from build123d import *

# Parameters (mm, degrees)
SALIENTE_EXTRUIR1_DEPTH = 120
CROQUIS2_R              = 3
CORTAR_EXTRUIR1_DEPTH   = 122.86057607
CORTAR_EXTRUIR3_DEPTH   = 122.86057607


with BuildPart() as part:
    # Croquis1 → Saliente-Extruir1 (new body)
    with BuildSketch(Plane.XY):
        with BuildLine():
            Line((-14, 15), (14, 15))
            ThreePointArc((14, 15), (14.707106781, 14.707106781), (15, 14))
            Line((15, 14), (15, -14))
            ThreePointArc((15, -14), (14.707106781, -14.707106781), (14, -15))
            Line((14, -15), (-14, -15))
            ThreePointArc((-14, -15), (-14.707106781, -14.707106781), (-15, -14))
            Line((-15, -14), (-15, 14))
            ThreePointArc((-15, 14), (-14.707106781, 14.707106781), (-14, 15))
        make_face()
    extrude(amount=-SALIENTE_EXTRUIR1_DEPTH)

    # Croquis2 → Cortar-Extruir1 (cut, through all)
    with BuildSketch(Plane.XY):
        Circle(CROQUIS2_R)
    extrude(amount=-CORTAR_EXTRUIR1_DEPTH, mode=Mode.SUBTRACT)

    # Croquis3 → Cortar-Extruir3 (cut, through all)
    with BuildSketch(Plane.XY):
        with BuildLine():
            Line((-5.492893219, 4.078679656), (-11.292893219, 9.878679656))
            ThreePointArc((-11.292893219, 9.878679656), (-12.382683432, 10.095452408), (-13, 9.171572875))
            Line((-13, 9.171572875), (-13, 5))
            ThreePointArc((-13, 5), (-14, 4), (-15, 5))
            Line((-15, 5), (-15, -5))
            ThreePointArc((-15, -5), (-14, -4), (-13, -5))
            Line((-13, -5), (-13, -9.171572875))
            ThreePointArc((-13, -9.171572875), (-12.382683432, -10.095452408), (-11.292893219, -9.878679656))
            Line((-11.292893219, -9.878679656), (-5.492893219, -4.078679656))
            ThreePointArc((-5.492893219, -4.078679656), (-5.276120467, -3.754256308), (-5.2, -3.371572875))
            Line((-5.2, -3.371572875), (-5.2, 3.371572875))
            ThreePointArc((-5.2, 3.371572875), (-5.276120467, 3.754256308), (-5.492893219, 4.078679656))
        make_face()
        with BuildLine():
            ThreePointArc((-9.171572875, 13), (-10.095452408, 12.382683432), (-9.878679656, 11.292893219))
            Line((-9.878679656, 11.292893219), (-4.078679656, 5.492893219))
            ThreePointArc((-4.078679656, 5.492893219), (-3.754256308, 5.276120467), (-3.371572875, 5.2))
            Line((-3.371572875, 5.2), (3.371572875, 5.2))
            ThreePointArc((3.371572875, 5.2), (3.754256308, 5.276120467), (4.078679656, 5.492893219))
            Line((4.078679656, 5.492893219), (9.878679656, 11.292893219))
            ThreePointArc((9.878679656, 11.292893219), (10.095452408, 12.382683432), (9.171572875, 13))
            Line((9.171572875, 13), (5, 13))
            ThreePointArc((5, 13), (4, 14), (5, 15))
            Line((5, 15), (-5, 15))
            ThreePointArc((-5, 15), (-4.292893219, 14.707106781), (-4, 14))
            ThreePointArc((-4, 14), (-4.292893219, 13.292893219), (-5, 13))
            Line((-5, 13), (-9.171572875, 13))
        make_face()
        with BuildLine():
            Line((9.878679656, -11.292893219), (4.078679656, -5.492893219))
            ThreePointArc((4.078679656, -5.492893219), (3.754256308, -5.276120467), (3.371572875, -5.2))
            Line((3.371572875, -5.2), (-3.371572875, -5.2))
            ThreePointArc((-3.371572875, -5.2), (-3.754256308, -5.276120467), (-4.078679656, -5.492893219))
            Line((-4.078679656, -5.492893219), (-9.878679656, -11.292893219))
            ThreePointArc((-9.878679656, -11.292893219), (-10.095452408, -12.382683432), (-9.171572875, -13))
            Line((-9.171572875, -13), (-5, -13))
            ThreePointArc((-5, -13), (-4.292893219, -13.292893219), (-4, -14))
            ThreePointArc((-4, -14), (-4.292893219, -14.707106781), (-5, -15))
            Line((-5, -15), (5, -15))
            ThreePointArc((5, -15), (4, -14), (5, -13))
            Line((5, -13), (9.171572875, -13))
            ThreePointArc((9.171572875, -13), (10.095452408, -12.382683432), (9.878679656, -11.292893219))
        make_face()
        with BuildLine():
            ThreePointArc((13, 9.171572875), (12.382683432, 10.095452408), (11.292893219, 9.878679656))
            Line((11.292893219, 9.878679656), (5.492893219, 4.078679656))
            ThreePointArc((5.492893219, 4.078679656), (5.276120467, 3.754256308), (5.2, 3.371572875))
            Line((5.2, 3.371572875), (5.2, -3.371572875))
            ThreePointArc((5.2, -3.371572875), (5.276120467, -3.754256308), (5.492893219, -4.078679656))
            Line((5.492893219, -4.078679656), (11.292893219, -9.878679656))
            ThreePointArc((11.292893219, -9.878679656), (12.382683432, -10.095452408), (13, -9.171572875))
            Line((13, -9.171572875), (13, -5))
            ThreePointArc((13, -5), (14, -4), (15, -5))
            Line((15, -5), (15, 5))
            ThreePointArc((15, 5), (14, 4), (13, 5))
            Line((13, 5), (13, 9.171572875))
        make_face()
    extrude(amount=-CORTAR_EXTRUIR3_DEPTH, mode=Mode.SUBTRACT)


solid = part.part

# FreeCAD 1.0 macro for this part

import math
import FreeCAD as App
import Part
import Sketcher

doc = App.newDocument("Part")
body = doc.addObject("PartDesign::Body", "Body")

# Sketch on XY plane
sketch1 = body.newObject("Sketcher::SketchObject", "Sketch")
sketch1.AttachmentSupport = (doc.getObject("XY_Plane"), [""])
sketch1.MapMode = "FlatFace"
sketch1.addGeometry([
    Part.LineSegment(App.Vector(14, 15, 0), App.Vector(-14, 15, 0)),  # 0
    Part.ArcOfCircle(Part.Circle(App.Vector(-14, 14, 0), App.Vector(0, 0, 1), 1), math.radians(90), math.radians(180)),  # 1
    Part.LineSegment(App.Vector(-15, 14, 0), App.Vector(-15, -14, 0)),  # 2
    Part.ArcOfCircle(Part.Circle(App.Vector(-14, -14, 0), App.Vector(0, 0, 1), 1), math.radians(-180), math.radians(-90)),  # 3
    Part.LineSegment(App.Vector(-14, -15, 0), App.Vector(14, -15, 0)),  # 4
    Part.ArcOfCircle(Part.Circle(App.Vector(14, -14, 0), App.Vector(0, 0, 1), 1), math.radians(-90), math.radians(0)),  # 5
    Part.LineSegment(App.Vector(15, -14, 0), App.Vector(15, 14, 0)),  # 6
    Part.ArcOfCircle(Part.Circle(App.Vector(14, 14, 0), App.Vector(0, 0, 1), 1), math.radians(0), math.radians(90)),  # 7
], False)
sketch1.addConstraint([
    Sketcher.Constraint("Tangent", 0, 2, 1, 1),
    Sketcher.Constraint("Tangent", 1, 2, 2, 1),
    Sketcher.Constraint("Tangent", 2, 2, 3, 1),
    Sketcher.Constraint("Tangent", 3, 2, 4, 1),
    Sketcher.Constraint("Tangent", 4, 2, 5, 1),
    Sketcher.Constraint("Tangent", 5, 2, 6, 1),
    Sketcher.Constraint("Tangent", 6, 2, 7, 1),
    Sketcher.Constraint("Tangent", 7, 2, 0, 1),
    Sketcher.Constraint("Horizontal", 0),
    Sketcher.Constraint("Vertical", 2),
    Sketcher.Constraint("Horizontal", 4),
    Sketcher.Constraint("Vertical", 6),
    Sketcher.Constraint("Equal", 1, 3),
    Sketcher.Constraint("Equal", 3, 5),
    Sketcher.Constraint("Equal", 5, 7),
    Sketcher.Constraint("Symmetric", 1, 3, 5, 3, -1, 1),
    Sketcher.Constraint("Equal", 4, 2),
    Sketcher.Constraint("Radius", 1, 1.0),
    Sketcher.Constraint("DistanceX", 0, 2, 0, 1, 28.0),
])
pad1 = body.newObject("PartDesign::Pad", "Pad")
pad1.Profile = sketch1
pad1.Length = 120
pad1.Reversed = True

# Sketch on XY plane
sketch2 = body.newObject("Sketcher::SketchObject", "Sketch001")
sketch2.AttachmentSupport = (doc.getObject("XY_Plane"), [""])
sketch2.MapMode = "FlatFace"
sketch2.addGeometry(Part.Circle(App.Vector(0, 0, 0), App.Vector(0, 0, 1), 3), False)
sketch2.addConstraint([
    Sketcher.Constraint("Coincident", 0, 3, -1, 1),
    Sketcher.Constraint("Diameter", 0, 6.0),
])
pocket1 = body.newObject("PartDesign::Pocket", "Pocket")
pocket1.Profile = sketch2
pocket1.Type = "ThroughAll"

# Sketch on XY plane
sketch3 = body.newObject("Sketcher::SketchObject", "Sketch002")
sketch3.AttachmentSupport = (doc.getObject("XY_Plane"), [""])
sketch3.MapMode = "FlatFace"
sketch3.addGeometry([
    Part.LineSegment(App.Vector(-5.5, 4.1, 0), App.Vector(-11.3, 9.9, 0)),  # 0
    Part.ArcOfCircle(Part.Circle(App.Vector(-12, 9.2, 0), App.Vector(0, 0, 1), 1), math.radians(45), math.radians(180)),  # 1
    Part.LineSegment(App.Vector(-13, 9.2, 0), App.Vector(-13, 5, 0)),  # 2
    Part.ArcOfCircle(Part.Circle(App.Vector(-14, 5, 0), App.Vector(0, 0, 1), 1), math.radians(180), math.radians(360)),  # 3
    Part.LineSegment(App.Vector(-15, 5, 0), App.Vector(-15, -5, 0)),  # 4
    Part.ArcOfCircle(Part.Circle(App.Vector(-14, -5, 0), App.Vector(0, 0, 1), 1), math.radians(0), math.radians(180)),  # 5
    Part.LineSegment(App.Vector(-13, -5, 0), App.Vector(-13, -9.2, 0)),  # 6
    Part.ArcOfCircle(Part.Circle(App.Vector(-12, -9.2, 0), App.Vector(0, 0, 1), 1), math.radians(180), math.radians(315)),  # 7
    Part.LineSegment(App.Vector(-11.3, -9.9, 0), App.Vector(-5.5, -4.1, 0)),  # 8
    Part.ArcOfCircle(Part.Circle(App.Vector(-6.2, -3.4, 0), App.Vector(0, 0, 1), 1), math.radians(-45), math.radians(0)),  # 9
    Part.LineSegment(App.Vector(-5.2, -3.4, 0), App.Vector(-5.2, 3.4, 0)),  # 10
    Part.ArcOfCircle(Part.Circle(App.Vector(-6.2, 3.4, 0), App.Vector(0, 0, 1), 1), math.radians(0), math.radians(45)),  # 11
    Part.ArcOfCircle(Part.Circle(App.Vector(-9.2, 12, 0), App.Vector(0, 0, 1), 1), math.radians(90), math.radians(225)),  # 12
    Part.LineSegment(App.Vector(-9.9, 11.3, 0), App.Vector(-4.1, 5.5, 0)),  # 13
    Part.ArcOfCircle(Part.Circle(App.Vector(-3.4, 6.2, 0), App.Vector(0, 0, 1), 1), math.radians(-135), math.radians(-90)),  # 14
    Part.LineSegment(App.Vector(-3.4, 5.2, 0), App.Vector(3.4, 5.2, 0)),  # 15
    Part.ArcOfCircle(Part.Circle(App.Vector(3.4, 6.2, 0), App.Vector(0, 0, 1), 1), math.radians(-90), math.radians(-45)),  # 16
    Part.LineSegment(App.Vector(4.1, 5.5, 0), App.Vector(9.9, 11.3, 0)),  # 17
    Part.ArcOfCircle(Part.Circle(App.Vector(9.2, 12, 0), App.Vector(0, 0, 1), 1), math.radians(-45), math.radians(90)),  # 18
    Part.LineSegment(App.Vector(9.2, 13, 0), App.Vector(5, 13, 0)),  # 19
    Part.ArcOfCircle(Part.Circle(App.Vector(5, 14, 0), App.Vector(0, 0, 1), 1), math.radians(90), math.radians(270)),  # 20
    Part.LineSegment(App.Vector(5, 15, 0), App.Vector(-5, 15, 0)),  # 21
    Part.ArcOfCircle(Part.Circle(App.Vector(-5, 14, 0), App.Vector(0, 0, 1), 1), math.radians(0), math.radians(90)),  # 22
    Part.ArcOfCircle(Part.Circle(App.Vector(-5, 14, 0), App.Vector(0, 0, 1), 1), math.radians(-90), math.radians(0)),  # 23
    Part.LineSegment(App.Vector(-5, 13, 0), App.Vector(-9.2, 13, 0)),  # 24
    Part.LineSegment(App.Vector(9.9, -11.3, 0), App.Vector(4.1, -5.5, 0)),  # 25
    Part.ArcOfCircle(Part.Circle(App.Vector(3.4, -6.2, 0), App.Vector(0, 0, 1), 1), math.radians(45), math.radians(90)),  # 26
    Part.LineSegment(App.Vector(3.4, -5.2, 0), App.Vector(-3.4, -5.2, 0)),  # 27
    Part.ArcOfCircle(Part.Circle(App.Vector(-3.4, -6.2, 0), App.Vector(0, 0, 1), 1), math.radians(90), math.radians(135)),  # 28
    Part.LineSegment(App.Vector(-4.1, -5.5, 0), App.Vector(-9.9, -11.3, 0)),  # 29
    Part.ArcOfCircle(Part.Circle(App.Vector(-9.2, -12, 0), App.Vector(0, 0, 1), 1), math.radians(135), math.radians(270)),  # 30
    Part.LineSegment(App.Vector(-9.2, -13, 0), App.Vector(-5, -13, 0)),  # 31
    Part.ArcOfCircle(Part.Circle(App.Vector(-5, -14, 0), App.Vector(0, 0, 1), 1), math.radians(0), math.radians(90)),  # 32
    Part.ArcOfCircle(Part.Circle(App.Vector(-5, -14, 0), App.Vector(0, 0, 1), 1), math.radians(-90), math.radians(0)),  # 33
    Part.LineSegment(App.Vector(-5, -15, 0), App.Vector(5, -15, 0)),  # 34
    Part.ArcOfCircle(Part.Circle(App.Vector(5, -14, 0), App.Vector(0, 0, 1), 1), math.radians(90), math.radians(270)),  # 35
    Part.LineSegment(App.Vector(5, -13, 0), App.Vector(9.2, -13, 0)),  # 36
    Part.ArcOfCircle(Part.Circle(App.Vector(9.2, -12, 0), App.Vector(0, 0, 1), 1), math.radians(-90), math.radians(45)),  # 37
    Part.ArcOfCircle(Part.Circle(App.Vector(12, 9.2, 0), App.Vector(0, 0, 1), 1), math.radians(0), math.radians(135)),  # 38
    Part.LineSegment(App.Vector(11.3, 9.9, 0), App.Vector(5.5, 4.1, 0)),  # 39
    Part.ArcOfCircle(Part.Circle(App.Vector(6.2, 3.4, 0), App.Vector(0, 0, 1), 1), math.radians(135), math.radians(180)),  # 40
    Part.LineSegment(App.Vector(5.2, 3.4, 0), App.Vector(5.2, -3.4, 0)),  # 41
    Part.ArcOfCircle(Part.Circle(App.Vector(6.2, -3.4, 0), App.Vector(0, 0, 1), 1), math.radians(180), math.radians(225)),  # 42
    Part.LineSegment(App.Vector(5.5, -4.1, 0), App.Vector(11.3, -9.9, 0)),  # 43
    Part.ArcOfCircle(Part.Circle(App.Vector(12, -9.2, 0), App.Vector(0, 0, 1), 1), math.radians(-135), math.radians(0)),  # 44
    Part.LineSegment(App.Vector(13, -9.2, 0), App.Vector(13, -5, 0)),  # 45
    Part.ArcOfCircle(Part.Circle(App.Vector(14, -5, 0), App.Vector(0, 0, 1), 1), math.radians(0), math.radians(180)),  # 46
    Part.LineSegment(App.Vector(15, -5, 0), App.Vector(15, 5, 0)),  # 47
    Part.ArcOfCircle(Part.Circle(App.Vector(14, 5, 0), App.Vector(0, 0, 1), 1), math.radians(180), math.radians(360)),  # 48
    Part.LineSegment(App.Vector(13, 5, 0), App.Vector(13, 9.2, 0)),  # 49
], False)
sketch3.addConstraint([
    Sketcher.Constraint("Tangent", 0, 2, 1, 1),
    Sketcher.Constraint("Tangent", 1, 2, 2, 1),
    Sketcher.Constraint("Tangent", 2, 2, 3, 2),
    Sketcher.Constraint("Tangent", 3, 1, 4, 1),
    Sketcher.Constraint("Tangent", 4, 2, 5, 2),
    Sketcher.Constraint("Tangent", 5, 1, 6, 1),
    Sketcher.Constraint("Tangent", 6, 2, 7, 1),
    Sketcher.Constraint("Tangent", 7, 2, 8, 1),
    Sketcher.Constraint("Tangent", 8, 2, 9, 1),
    Sketcher.Constraint("Tangent", 9, 2, 10, 1),
    Sketcher.Constraint("Tangent", 10, 2, 11, 1),
    Sketcher.Constraint("Tangent", 11, 2, 0, 1),
    Sketcher.Constraint("Tangent", 12, 2, 13, 1),
    Sketcher.Constraint("Tangent", 13, 2, 14, 1),
    Sketcher.Constraint("Tangent", 14, 2, 15, 1),
    Sketcher.Constraint("Tangent", 15, 2, 16, 1),
    Sketcher.Constraint("Tangent", 16, 2, 17, 1),
    Sketcher.Constraint("Tangent", 17, 2, 18, 1),
    Sketcher.Constraint("Tangent", 18, 2, 19, 1),
    Sketcher.Constraint("Tangent", 19, 2, 20, 2),
    Sketcher.Constraint("Tangent", 20, 1, 21, 1),
    Sketcher.Constraint("Tangent", 21, 2, 22, 2),
    Sketcher.Constraint("Tangent", 22, 1, 23, 2),
    Sketcher.Constraint("Tangent", 23, 1, 24, 1),
    Sketcher.Constraint("Tangent", 24, 2, 12, 1),
    Sketcher.Constraint("Tangent", 25, 2, 26, 1),
    Sketcher.Constraint("Tangent", 26, 2, 27, 1),
    Sketcher.Constraint("Tangent", 27, 2, 28, 1),
    Sketcher.Constraint("Tangent", 28, 2, 29, 1),
    Sketcher.Constraint("Tangent", 29, 2, 30, 1),
    Sketcher.Constraint("Tangent", 30, 2, 31, 1),
    Sketcher.Constraint("Tangent", 31, 2, 32, 2),
    Sketcher.Constraint("Tangent", 32, 1, 33, 2),
    Sketcher.Constraint("Tangent", 33, 1, 34, 1),
    Sketcher.Constraint("Tangent", 34, 2, 35, 2),
    Sketcher.Constraint("Tangent", 35, 1, 36, 1),
    Sketcher.Constraint("Tangent", 36, 2, 37, 1),
    Sketcher.Constraint("Tangent", 37, 2, 25, 1),
    Sketcher.Constraint("Tangent", 38, 2, 39, 1),
    Sketcher.Constraint("Tangent", 39, 2, 40, 1),
    Sketcher.Constraint("Tangent", 40, 2, 41, 1),
    Sketcher.Constraint("Tangent", 41, 2, 42, 1),
    Sketcher.Constraint("Tangent", 42, 2, 43, 1),
    Sketcher.Constraint("Tangent", 43, 2, 44, 1),
    Sketcher.Constraint("Tangent", 44, 2, 45, 1),
    Sketcher.Constraint("Tangent", 45, 2, 46, 2),
    Sketcher.Constraint("Tangent", 46, 1, 47, 1),
    Sketcher.Constraint("Tangent", 47, 2, 48, 2),
    Sketcher.Constraint("Tangent", 48, 1, 49, 1),
    Sketcher.Constraint("Tangent", 49, 2, 38, 1),
    Sketcher.Constraint("Vertical", 2),
    Sketcher.Constraint("Vertical", 4),
    Sketcher.Constraint("Vertical", 6),
    Sketcher.Constraint("Vertical", 10),
    Sketcher.Constraint("Horizontal", 15),
    Sketcher.Constraint("Horizontal", 19),
    Sketcher.Constraint("Horizontal", 21),
    Sketcher.Constraint("Horizontal", 24),
    Sketcher.Constraint("Horizontal", 27),
    Sketcher.Constraint("Horizontal", 31),
    Sketcher.Constraint("Horizontal", 34),
    Sketcher.Constraint("Horizontal", 36),
    Sketcher.Constraint("Vertical", 41),
    Sketcher.Constraint("Vertical", 45),
    Sketcher.Constraint("Vertical", 47),
    Sketcher.Constraint("Vertical", 49),
    Sketcher.Constraint("Equal", 1, 3),
    Sketcher.Constraint("Equal", 3, 5),
    Sketcher.Constraint("Equal", 5, 7),
    Sketcher.Constraint("Equal", 7, 9),
    Sketcher.Constraint("Equal", 9, 11),
    Sketcher.Constraint("Equal", 11, 12),
    Sketcher.Constraint("Equal", 12, 14),
    Sketcher.Constraint("Equal", 14, 16),
    Sketcher.Constraint("Equal", 16, 18),
    Sketcher.Constraint("Equal", 18, 20),
    Sketcher.Constraint("Equal", 20, 22),
    Sketcher.Constraint("Equal", 22, 23),
    Sketcher.Constraint("Equal", 23, 26),
    Sketcher.Constraint("Equal", 26, 28),
    Sketcher.Constraint("Equal", 28, 30),
    Sketcher.Constraint("Equal", 30, 32),
    Sketcher.Constraint("Equal", 32, 33),
    Sketcher.Constraint("Equal", 33, 35),
    Sketcher.Constraint("Equal", 35, 37),
    Sketcher.Constraint("Equal", 37, 38),
    Sketcher.Constraint("Equal", 38, 40),
    Sketcher.Constraint("Equal", 40, 42),
    Sketcher.Constraint("Equal", 42, 44),
    Sketcher.Constraint("Equal", 44, 46),
    Sketcher.Constraint("Equal", 46, 48),
    Sketcher.Constraint("Symmetric", 14, 3, 26, 3, -1, 1),
    Sketcher.Constraint("Symmetric", 18, 3, 30, 3, -1, 1),
    Sketcher.Constraint("Symmetric", 7, 3, 38, 3, -1, 1),
    Sketcher.Constraint("Symmetric", 9, 3, 40, 3, -1, 1),
    Sketcher.Constraint("Symmetric", 11, 2, 42, 2, -1, 1),
    Sketcher.Constraint("Symmetric", 13, 2, 16, 2, -2),
    Sketcher.Constraint("Symmetric", 25, 2, 28, 2, -2),
    Sketcher.Constraint("Symmetric", 0, 2, 38, 2, -2),
    Sketcher.Constraint("Symmetric", 22, 1, 32, 1, -1),
    Sketcher.Constraint("Perpendicular", 0, 8),
    Sketcher.Constraint("Perpendicular", 8, 13),
    Sketcher.Constraint("Horizontal", 5, 3, 46, 3),
    Sketcher.Constraint("Horizontal", 3, 3, 48, 3),
    Sketcher.Constraint("Horizontal", 23, 3, 22, 1),
    Sketcher.Constraint("Vertical", 20, 3, 35, 3),
    Sketcher.Constraint("Equal", 19, 24),
    Sketcher.Constraint("Equal", 36, 2),
    Sketcher.Constraint("Equal", 34, 4),
    Sketcher.Constraint("Equal", 2, 6),
    Sketcher.Constraint("Equal", 27, 10),
    Sketcher.Constraint("Radius", 1, 1.0),
    Sketcher.Constraint("DistanceX", 21, 2, 21, 1, 10.0),
    Sketcher.Constraint("DistanceX", 1, 3, -1, 1, 12.0),
    Sketcher.Constraint("DistanceY", -1, 1, 12, 3, 12.0),
    Sketcher.Constraint("DistanceX", 9, 3, -1, 1, 6.2),
    Sketcher.Constraint("DistanceX", 15, 1, 15, 2, 6.743146),
])
pocket2 = body.newObject("PartDesign::Pocket", "Pocket001")
pocket2.Profile = sketch3
pocket2.Type = "ThroughAll"

doc.recompute()
